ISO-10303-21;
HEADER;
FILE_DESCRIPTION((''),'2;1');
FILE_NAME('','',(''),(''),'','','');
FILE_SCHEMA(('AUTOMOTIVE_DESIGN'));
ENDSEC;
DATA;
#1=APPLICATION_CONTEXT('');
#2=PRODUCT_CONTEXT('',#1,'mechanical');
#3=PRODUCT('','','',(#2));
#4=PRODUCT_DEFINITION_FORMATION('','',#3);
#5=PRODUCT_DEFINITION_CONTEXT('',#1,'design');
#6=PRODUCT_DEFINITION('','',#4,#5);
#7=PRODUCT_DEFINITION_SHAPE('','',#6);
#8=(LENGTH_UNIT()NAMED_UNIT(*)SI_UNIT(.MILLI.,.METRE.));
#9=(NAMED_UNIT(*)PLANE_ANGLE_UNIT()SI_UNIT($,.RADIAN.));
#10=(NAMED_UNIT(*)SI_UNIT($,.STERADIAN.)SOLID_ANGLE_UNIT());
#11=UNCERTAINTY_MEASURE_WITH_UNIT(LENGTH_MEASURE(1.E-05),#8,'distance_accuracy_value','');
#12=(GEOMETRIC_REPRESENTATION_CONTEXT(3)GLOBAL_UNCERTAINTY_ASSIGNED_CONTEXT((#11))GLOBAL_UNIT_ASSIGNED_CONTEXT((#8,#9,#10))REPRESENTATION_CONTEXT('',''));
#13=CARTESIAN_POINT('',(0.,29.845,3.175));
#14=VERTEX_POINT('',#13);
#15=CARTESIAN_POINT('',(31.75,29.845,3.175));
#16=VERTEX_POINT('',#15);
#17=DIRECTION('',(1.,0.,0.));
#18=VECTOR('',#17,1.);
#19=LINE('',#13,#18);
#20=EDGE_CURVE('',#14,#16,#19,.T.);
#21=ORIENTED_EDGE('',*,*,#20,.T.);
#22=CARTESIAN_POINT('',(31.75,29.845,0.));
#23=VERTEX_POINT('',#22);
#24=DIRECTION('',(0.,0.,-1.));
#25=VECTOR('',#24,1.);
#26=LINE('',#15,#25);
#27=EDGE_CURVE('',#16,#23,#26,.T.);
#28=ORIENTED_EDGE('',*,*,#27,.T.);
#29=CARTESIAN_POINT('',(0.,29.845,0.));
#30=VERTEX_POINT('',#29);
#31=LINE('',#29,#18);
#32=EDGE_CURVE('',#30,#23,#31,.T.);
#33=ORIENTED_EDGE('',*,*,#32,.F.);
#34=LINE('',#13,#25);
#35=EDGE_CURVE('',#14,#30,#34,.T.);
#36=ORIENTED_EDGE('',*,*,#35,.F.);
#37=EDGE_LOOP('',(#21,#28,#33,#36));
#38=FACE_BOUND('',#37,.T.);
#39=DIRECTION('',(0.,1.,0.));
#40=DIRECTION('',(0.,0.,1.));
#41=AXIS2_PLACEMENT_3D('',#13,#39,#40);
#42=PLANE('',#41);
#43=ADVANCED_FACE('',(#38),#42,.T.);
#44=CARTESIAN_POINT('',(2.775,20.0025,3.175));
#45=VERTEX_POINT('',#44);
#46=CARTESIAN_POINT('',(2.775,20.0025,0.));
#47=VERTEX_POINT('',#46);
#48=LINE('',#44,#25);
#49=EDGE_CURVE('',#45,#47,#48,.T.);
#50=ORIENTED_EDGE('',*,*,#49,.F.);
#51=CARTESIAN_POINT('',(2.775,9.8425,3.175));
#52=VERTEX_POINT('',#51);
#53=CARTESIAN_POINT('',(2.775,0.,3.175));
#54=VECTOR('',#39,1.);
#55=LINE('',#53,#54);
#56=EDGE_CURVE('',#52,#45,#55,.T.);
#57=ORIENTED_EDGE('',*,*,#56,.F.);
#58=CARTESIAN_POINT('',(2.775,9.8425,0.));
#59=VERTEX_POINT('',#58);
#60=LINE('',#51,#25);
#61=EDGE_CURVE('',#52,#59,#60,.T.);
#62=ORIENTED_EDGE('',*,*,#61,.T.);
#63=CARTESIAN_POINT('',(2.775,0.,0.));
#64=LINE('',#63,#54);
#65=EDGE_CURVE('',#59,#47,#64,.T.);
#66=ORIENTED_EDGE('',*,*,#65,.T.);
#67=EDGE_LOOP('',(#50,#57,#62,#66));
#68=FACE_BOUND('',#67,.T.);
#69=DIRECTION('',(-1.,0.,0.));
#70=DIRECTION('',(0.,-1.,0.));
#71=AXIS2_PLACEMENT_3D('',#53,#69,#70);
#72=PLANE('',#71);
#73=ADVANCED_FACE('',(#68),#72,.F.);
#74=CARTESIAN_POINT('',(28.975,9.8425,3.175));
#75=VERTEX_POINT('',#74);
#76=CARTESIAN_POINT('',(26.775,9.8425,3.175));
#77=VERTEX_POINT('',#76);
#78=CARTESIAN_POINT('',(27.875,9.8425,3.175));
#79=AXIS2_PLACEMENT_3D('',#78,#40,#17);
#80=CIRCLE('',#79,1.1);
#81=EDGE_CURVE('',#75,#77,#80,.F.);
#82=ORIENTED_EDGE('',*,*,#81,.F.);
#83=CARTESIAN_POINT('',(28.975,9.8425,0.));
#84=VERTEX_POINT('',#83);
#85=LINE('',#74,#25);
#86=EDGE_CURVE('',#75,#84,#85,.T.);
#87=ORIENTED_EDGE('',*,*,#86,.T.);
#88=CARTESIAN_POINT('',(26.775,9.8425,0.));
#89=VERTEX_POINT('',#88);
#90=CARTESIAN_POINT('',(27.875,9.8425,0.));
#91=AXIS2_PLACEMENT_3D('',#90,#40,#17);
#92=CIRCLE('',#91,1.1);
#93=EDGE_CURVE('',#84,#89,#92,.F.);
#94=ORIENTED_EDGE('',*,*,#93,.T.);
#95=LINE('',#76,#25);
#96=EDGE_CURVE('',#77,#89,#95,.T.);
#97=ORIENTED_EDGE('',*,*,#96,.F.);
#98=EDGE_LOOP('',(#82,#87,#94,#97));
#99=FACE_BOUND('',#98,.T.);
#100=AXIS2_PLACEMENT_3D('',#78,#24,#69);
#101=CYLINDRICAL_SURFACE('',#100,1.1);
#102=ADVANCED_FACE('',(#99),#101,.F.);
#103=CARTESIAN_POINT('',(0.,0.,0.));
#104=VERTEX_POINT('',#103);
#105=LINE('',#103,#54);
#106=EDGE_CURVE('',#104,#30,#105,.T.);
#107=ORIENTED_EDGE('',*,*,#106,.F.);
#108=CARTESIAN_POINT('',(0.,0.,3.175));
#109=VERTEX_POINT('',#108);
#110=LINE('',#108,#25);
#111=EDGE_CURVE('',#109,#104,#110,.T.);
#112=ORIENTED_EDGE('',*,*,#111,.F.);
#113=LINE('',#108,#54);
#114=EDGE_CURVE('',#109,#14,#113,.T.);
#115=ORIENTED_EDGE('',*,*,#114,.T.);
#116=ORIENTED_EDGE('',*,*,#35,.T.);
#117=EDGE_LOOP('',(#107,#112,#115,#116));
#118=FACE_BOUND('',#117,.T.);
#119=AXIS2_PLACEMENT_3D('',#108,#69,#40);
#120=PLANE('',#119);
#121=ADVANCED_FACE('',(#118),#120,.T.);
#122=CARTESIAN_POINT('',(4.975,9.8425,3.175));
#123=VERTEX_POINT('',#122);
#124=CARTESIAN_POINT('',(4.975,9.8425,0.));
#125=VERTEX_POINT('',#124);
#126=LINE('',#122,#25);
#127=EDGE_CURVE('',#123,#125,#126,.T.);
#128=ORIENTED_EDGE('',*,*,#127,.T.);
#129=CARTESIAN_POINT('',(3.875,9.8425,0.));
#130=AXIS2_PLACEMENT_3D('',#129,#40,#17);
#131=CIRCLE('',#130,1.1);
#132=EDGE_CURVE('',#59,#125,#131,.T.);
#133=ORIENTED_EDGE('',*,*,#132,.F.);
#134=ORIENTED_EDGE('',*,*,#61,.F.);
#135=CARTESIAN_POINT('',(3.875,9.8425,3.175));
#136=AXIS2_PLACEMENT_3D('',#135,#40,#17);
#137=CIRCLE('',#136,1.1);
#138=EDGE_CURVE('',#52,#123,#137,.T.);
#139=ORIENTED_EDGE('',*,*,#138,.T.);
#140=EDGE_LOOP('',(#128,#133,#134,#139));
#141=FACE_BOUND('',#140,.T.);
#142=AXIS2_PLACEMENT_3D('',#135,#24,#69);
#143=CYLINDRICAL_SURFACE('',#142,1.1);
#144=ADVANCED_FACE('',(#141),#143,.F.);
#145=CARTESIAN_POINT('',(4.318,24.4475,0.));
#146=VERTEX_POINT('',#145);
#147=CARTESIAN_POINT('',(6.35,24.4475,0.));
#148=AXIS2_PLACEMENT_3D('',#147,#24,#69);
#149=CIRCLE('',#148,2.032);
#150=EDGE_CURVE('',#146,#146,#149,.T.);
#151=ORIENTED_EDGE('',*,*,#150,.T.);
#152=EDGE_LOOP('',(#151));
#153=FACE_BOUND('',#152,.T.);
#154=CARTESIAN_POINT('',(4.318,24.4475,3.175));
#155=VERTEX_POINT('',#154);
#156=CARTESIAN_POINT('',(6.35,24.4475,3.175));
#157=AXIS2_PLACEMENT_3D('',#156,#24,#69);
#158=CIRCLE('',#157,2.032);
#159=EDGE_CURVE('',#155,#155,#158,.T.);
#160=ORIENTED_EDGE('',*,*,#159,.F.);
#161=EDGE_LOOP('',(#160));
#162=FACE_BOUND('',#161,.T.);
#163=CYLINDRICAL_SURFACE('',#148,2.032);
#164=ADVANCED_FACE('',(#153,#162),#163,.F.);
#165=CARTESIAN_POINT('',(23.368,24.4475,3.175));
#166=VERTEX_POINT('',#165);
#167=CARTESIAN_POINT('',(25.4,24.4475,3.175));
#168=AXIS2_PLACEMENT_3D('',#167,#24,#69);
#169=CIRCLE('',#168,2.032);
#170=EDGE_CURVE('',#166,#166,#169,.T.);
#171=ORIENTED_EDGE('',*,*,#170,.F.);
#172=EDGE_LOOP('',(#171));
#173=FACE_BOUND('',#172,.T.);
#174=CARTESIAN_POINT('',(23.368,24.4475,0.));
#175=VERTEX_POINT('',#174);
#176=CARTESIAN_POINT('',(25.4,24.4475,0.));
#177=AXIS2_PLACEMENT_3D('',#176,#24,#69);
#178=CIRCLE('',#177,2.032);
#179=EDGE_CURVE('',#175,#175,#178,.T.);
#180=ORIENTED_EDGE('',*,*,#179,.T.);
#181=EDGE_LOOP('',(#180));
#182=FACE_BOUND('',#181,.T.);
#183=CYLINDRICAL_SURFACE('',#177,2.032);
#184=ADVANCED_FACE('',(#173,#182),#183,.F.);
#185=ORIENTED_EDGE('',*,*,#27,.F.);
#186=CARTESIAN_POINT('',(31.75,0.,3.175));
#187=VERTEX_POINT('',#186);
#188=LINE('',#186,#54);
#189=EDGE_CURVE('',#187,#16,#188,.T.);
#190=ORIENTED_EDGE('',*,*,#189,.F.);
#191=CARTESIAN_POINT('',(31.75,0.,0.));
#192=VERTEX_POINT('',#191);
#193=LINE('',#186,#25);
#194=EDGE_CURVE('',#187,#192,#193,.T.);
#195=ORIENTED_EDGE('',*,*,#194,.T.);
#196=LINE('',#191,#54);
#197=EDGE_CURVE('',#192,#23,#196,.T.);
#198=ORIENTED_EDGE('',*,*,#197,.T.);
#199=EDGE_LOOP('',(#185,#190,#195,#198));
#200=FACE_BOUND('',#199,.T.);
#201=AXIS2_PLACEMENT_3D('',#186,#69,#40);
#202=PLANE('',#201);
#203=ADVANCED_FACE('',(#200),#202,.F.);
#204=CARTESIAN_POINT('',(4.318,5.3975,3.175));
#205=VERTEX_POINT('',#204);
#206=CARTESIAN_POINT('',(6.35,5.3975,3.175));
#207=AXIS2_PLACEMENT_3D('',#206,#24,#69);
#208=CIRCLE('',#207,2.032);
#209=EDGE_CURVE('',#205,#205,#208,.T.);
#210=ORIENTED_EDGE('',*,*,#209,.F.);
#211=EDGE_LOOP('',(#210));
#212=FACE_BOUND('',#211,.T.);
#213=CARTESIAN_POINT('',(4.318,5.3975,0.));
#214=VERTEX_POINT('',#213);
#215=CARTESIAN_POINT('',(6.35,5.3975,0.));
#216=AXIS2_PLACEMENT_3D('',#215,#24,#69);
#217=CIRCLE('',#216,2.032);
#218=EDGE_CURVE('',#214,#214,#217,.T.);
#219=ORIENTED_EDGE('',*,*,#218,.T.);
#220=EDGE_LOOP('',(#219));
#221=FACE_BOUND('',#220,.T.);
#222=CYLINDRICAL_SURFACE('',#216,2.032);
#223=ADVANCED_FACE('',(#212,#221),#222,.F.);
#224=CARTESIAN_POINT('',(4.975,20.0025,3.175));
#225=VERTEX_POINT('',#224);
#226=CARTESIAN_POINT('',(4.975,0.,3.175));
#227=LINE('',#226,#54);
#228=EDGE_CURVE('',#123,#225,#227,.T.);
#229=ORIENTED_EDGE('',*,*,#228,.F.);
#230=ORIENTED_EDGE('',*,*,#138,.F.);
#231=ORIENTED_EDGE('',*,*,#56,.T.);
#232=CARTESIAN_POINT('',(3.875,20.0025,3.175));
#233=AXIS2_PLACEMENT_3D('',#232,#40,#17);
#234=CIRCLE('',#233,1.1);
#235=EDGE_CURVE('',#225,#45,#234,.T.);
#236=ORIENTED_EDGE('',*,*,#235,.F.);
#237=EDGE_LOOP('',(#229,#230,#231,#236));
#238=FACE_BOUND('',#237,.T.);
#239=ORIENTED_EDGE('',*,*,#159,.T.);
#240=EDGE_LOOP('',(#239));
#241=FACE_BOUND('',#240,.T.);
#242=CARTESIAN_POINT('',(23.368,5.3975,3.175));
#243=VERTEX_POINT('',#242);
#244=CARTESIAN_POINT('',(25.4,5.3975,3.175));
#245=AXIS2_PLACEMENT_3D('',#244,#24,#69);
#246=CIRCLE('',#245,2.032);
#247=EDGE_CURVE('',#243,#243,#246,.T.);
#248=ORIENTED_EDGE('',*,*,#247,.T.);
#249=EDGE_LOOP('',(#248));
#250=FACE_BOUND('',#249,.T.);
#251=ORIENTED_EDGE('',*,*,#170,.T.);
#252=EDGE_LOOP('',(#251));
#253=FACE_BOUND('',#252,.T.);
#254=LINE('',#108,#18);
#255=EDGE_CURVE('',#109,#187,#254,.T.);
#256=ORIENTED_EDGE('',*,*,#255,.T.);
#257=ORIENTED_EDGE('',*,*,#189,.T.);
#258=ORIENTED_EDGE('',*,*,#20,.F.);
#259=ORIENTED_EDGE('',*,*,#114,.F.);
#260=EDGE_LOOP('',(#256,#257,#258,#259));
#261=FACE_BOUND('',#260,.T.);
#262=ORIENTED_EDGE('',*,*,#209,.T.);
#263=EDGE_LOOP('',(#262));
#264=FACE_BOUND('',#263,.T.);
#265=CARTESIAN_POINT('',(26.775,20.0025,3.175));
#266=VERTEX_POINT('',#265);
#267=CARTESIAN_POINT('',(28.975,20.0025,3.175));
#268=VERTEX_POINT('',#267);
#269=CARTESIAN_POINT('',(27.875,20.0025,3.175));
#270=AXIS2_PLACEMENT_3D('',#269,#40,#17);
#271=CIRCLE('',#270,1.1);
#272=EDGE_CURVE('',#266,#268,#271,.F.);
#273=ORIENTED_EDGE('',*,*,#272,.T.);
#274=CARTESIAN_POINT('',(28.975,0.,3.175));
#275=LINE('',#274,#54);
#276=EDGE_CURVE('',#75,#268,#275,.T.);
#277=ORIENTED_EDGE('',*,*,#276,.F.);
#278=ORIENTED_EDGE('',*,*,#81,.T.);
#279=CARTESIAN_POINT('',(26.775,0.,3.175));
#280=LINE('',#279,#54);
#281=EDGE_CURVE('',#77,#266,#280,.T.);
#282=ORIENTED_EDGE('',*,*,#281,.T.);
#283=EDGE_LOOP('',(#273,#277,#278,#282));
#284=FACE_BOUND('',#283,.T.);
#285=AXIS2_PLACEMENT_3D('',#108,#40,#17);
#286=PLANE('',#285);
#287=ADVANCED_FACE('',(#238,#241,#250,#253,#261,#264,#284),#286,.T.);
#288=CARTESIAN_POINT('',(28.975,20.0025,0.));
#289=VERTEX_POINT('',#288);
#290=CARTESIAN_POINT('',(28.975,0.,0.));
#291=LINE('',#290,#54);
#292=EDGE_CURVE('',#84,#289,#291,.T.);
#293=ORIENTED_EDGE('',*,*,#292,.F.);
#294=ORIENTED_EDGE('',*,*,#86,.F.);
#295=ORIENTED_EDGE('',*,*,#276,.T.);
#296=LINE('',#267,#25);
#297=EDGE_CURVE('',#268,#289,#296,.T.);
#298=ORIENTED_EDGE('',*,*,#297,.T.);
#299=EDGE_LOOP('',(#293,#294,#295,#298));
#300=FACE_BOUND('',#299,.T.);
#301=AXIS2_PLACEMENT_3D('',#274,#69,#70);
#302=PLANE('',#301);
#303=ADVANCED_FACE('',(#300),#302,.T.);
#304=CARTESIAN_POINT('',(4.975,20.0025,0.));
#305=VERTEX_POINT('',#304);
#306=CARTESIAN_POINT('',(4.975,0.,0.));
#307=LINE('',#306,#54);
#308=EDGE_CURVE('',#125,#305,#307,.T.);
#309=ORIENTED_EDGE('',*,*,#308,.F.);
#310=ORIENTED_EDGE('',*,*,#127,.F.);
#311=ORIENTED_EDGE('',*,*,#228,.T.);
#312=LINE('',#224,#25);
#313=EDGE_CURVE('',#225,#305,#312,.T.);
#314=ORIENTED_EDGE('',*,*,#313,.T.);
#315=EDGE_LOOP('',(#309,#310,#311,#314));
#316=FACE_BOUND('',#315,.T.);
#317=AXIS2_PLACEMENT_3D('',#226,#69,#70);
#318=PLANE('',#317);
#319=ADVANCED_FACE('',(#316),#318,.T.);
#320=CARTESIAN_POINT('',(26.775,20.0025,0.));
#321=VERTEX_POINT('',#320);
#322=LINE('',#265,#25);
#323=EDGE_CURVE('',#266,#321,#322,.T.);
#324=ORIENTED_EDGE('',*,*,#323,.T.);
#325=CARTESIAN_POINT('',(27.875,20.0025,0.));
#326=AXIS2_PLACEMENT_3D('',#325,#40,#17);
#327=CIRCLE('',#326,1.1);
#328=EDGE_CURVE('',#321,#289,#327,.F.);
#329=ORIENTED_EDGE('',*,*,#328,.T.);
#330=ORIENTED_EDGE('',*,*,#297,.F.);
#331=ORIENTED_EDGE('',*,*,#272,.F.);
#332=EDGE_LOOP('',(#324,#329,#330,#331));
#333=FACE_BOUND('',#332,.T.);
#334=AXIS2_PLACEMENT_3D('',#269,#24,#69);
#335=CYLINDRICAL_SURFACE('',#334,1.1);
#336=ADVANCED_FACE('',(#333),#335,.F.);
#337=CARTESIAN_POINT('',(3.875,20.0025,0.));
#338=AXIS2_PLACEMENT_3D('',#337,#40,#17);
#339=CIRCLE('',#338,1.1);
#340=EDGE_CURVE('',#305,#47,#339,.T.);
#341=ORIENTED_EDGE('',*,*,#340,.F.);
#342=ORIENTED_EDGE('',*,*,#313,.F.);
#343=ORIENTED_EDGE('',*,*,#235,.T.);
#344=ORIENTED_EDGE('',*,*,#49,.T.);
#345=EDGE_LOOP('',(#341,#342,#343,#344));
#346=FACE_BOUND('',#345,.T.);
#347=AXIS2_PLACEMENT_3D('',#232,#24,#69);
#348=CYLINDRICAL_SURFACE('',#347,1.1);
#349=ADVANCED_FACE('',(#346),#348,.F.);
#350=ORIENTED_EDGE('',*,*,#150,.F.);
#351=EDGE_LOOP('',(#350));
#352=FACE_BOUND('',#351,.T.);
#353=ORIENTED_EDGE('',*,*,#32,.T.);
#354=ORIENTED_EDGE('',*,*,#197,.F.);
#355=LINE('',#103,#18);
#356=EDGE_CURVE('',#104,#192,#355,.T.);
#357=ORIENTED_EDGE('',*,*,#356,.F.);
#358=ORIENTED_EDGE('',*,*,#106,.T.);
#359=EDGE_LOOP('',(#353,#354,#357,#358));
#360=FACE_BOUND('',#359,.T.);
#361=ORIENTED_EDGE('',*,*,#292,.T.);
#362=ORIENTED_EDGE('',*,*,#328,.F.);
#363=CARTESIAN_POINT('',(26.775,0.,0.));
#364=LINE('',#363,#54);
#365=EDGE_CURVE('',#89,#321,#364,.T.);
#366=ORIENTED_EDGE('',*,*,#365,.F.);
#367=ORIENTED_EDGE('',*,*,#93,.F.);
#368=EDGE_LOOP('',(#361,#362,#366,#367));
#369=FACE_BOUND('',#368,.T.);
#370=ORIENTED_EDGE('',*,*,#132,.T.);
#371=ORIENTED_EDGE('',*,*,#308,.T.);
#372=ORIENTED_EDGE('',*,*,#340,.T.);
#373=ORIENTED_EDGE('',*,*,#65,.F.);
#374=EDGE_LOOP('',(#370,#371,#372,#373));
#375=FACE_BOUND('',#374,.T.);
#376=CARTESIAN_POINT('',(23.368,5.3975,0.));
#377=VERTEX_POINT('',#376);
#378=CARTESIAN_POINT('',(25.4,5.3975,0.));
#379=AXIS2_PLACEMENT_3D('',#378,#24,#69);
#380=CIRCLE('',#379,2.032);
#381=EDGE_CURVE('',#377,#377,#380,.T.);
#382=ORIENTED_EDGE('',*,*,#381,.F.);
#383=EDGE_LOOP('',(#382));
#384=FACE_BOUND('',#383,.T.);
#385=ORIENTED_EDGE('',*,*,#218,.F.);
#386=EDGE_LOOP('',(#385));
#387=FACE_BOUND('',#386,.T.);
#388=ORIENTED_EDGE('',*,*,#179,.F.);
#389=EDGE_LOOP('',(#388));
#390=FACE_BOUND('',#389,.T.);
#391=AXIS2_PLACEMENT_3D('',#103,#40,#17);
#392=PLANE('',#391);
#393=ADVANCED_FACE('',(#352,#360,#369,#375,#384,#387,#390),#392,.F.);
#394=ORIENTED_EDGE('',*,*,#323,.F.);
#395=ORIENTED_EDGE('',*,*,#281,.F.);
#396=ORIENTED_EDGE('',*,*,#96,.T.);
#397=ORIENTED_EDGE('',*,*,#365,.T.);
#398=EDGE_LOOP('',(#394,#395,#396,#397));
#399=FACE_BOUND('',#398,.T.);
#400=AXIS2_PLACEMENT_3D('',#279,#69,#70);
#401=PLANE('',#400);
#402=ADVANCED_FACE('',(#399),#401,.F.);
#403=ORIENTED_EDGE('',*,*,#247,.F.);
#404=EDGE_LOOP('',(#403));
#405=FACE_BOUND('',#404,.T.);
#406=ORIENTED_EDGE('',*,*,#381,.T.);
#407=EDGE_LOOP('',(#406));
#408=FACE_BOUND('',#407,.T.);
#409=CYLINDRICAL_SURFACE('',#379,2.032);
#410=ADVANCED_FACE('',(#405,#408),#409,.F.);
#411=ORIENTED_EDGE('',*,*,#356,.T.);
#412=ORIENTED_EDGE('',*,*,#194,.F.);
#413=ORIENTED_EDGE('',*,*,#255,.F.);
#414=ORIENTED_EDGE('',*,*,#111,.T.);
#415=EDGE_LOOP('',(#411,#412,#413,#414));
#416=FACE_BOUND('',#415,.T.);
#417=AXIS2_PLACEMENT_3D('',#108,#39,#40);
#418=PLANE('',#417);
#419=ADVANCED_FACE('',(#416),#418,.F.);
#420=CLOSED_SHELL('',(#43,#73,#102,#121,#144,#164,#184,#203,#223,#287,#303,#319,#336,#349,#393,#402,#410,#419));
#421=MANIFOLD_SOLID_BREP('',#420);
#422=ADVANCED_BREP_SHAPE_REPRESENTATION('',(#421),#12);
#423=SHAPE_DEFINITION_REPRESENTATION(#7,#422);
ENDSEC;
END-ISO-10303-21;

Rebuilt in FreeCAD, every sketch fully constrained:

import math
import FreeCAD as App
import Part
import Sketcher

V = App.Vector
Q = App.Units.Quantity


def add_polygon(sketch, points):
    """Adds a closed chain of lines whose ends are joined by coincident constraints."""
    first, n = sketch.GeometryCount, len(points)
    for a, b in zip(points, points[1:] + points[:1]):
        sketch.addGeometry(Part.LineSegment(App.Vector(*a, 0), App.Vector(*b, 0)), False)
    for i in range(n):
        sketch.addConstraint(Sketcher.Constraint("Coincident", first + i, 2, first + (i + 1) % n, 1))

doc = App.newDocument("Part")
params = doc.addObject("Spreadsheet::Sheet", "Params")
for row, (alias, value) in enumerate([
    ("sketch1_height", "0.4 in"),
    ("sketch1_width", "1.25 in"),
    ("sketch1_height2", "1.175 in"),
    ("pad1_length", "0.125 in"),
    ("sketch2_diameter", "0.16 in"),
    ("hole_diameter", "0.16 in"),
], start=1):
    params.set(f"A{row}", alias)
    params.set(f"B{row}", "=" + value)
    params.setAlias(f"B{row}", alias)

body = doc.addObject("PartDesign::Body", "Body")

sketch1 = doc.addObject("Sketcher::SketchObject", "Sketch")
body.addObject(sketch1)
sketch1.AttachmentSupport = (doc.XY_Plane, [""])
sketch1.MapMode = "FlatFace"
add_polygon(sketch1, [(0, 29.8), (0, 0), (31.8, 0), (31.8, 29.8)])
sketch1.addGeometry(Part.LineSegment(V(29, 20, 0), V(29, 9.8, 0)), False)
sketch1.addGeometry(Part.ArcOfCircle(Part.Circle(V(27.9, 9.8, 0), V(0, 0, 1), 1.1), math.radians(180), math.radians(360)), False)
sketch1.addGeometry(Part.LineSegment(V(26.8, 9.8, 0), V(26.8, 20, 0)), False)
sketch1.addGeometry(Part.ArcOfCircle(Part.Circle(V(27.9, 20, 0), V(0, 0, 1), 1.1), math.radians(0), math.radians(180)), False)
sketch1.addGeometry(Part.ArcOfCircle(Part.Circle(V(3.9, 9.8, 0), V(0, 0, 1), 1.1), math.radians(180), math.radians(360)), False)
sketch1.addGeometry(Part.LineSegment(V(2.8, 9.8, 0), V(2.8, 20, 0)), False)
sketch1.addGeometry(Part.ArcOfCircle(Part.Circle(V(3.9, 20, 0), V(0, 0, 1), 1.1), math.radians(0), math.radians(180)), False)
sketch1.addGeometry(Part.LineSegment(V(5, 20, 0), V(5, 9.8, 0)), False)
sketch1.addConstraint([
    Sketcher.Constraint("Tangent", 4, 2, 5, 2),
    Sketcher.Constraint("Tangent", 5, 1, 6, 1),
    Sketcher.Constraint("Tangent", 6, 2, 7, 2),
    Sketcher.Constraint("Tangent", 7, 1, 4, 1),
    Sketcher.Constraint("Tangent", 8, 1, 9, 1),
    Sketcher.Constraint("Tangent", 9, 2, 10, 2),
    Sketcher.Constraint("Tangent", 10, 1, 11, 1),
    Sketcher.Constraint("Tangent", 11, 2, 8, 2),
    Sketcher.Constraint("Vertical", 0),
    Sketcher.Constraint("Horizontal", 1),
    Sketcher.Constraint("Vertical", 2),
    Sketcher.Constraint("Horizontal", 3),
    Sketcher.Constraint("Vertical", 4),
    Sketcher.Constraint("Vertical", 6),
    Sketcher.Constraint("Vertical", 9),
    Sketcher.Constraint("Vertical", 11),
    Sketcher.Constraint("Coincident", 0, 2, -1, 1),
    Sketcher.Constraint("Equal", 7, 8),
    Sketcher.Constraint("Horizontal", 5, 3, 8, 3),
    Sketcher.Constraint("Horizontal", 7, 3, 10, 3),
    Sketcher.Constraint("DistanceY", 4, 2, 4, 1, Q("0.4 in")),
    Sketcher.Constraint("DistanceX", 1, 1, 1, 2, Q("1.25 in")),
    Sketcher.Constraint("DistanceY", 0, 2, 0, 1, Q("1.175 in")),
    Sketcher.Constraint("Radius", 5, 1.1),
    Sketcher.Constraint("DistanceY", -1, 1, 5, 3, Q("0.3875 in")),
    Sketcher.Constraint("DistanceX", -1, 1, 5, 3, 27.875),
    Sketcher.Constraint("DistanceX", -1, 1, 8, 3, 3.875),
])
sketch1.setExpression("Constraints[24]", "Params.sketch1_height")
sketch1.setExpression("Constraints[25]", "Params.sketch1_width")
sketch1.setExpression("Constraints[26]", "Params.sketch1_height2")
pad1 = doc.addObject("PartDesign::Pad", "Pad")
body.addObject(pad1)
pad1.Profile = sketch1
pad1.setExpression("Length", "Params.pad1_length")

sketch2 = doc.addObject("Sketcher::SketchObject", "Sketch001")
body.addObject(sketch2)
sketch2.AttachmentSupport = (doc.XY_Plane, [""])
sketch2.MapMode = "FlatFace"
sketch2.addGeometry([
    Part.Circle(V(25.4, 24.4, 0), V(0, 0, 1), 2),
    Part.Circle(V(6.3, 24.4, 0), V(0, 0, 1), 2),
    Part.Circle(V(6.3, 5.4, 0), V(0, 0, 1), 2),
    Part.Circle(V(25.4, 5.4, 0), V(0, 0, 1), 2),
], False)
sketch2.addConstraint([
    Sketcher.Constraint("Equal", 0, 1),
    Sketcher.Constraint("Equal", 1, 2),
    Sketcher.Constraint("Equal", 2, 3),
    Sketcher.Constraint("Horizontal", 0, 3, 1, 3),
    Sketcher.Constraint("Horizontal", 2, 3, 3, 3),
    Sketcher.Constraint("Vertical", 1, 3, 2, 3),
    Sketcher.Constraint("Vertical", 0, 3, 3, 3),
    Sketcher.Constraint("Diameter", 0, Q("0.16 in")),
    Sketcher.Constraint("DistanceX", -1, 1, 0, 3, Q("1 in")),
    Sketcher.Constraint("DistanceX", -1, 1, 1, 3, Q("0.25 in")),
    Sketcher.Constraint("DistanceY", 2, 3, 1, 3, Q("0.75 in")),
    Sketcher.Constraint("DistanceY", -1, 1, 0, 3, Q("0.9625 in")),
])
sketch2.setExpression("Constraints[7]", "Params.sketch2_diameter")
doc.recompute()
hole = doc.addObject("PartDesign::Hole", "Hole")
body.addObject(hole)
hole.Profile = sketch2
hole.ThreadType = "None"
hole.setExpression("Diameter", "Params.hole_diameter")
hole.DepthType = "ThroughAll"
hole.Reversed = True

doc.recompute()
